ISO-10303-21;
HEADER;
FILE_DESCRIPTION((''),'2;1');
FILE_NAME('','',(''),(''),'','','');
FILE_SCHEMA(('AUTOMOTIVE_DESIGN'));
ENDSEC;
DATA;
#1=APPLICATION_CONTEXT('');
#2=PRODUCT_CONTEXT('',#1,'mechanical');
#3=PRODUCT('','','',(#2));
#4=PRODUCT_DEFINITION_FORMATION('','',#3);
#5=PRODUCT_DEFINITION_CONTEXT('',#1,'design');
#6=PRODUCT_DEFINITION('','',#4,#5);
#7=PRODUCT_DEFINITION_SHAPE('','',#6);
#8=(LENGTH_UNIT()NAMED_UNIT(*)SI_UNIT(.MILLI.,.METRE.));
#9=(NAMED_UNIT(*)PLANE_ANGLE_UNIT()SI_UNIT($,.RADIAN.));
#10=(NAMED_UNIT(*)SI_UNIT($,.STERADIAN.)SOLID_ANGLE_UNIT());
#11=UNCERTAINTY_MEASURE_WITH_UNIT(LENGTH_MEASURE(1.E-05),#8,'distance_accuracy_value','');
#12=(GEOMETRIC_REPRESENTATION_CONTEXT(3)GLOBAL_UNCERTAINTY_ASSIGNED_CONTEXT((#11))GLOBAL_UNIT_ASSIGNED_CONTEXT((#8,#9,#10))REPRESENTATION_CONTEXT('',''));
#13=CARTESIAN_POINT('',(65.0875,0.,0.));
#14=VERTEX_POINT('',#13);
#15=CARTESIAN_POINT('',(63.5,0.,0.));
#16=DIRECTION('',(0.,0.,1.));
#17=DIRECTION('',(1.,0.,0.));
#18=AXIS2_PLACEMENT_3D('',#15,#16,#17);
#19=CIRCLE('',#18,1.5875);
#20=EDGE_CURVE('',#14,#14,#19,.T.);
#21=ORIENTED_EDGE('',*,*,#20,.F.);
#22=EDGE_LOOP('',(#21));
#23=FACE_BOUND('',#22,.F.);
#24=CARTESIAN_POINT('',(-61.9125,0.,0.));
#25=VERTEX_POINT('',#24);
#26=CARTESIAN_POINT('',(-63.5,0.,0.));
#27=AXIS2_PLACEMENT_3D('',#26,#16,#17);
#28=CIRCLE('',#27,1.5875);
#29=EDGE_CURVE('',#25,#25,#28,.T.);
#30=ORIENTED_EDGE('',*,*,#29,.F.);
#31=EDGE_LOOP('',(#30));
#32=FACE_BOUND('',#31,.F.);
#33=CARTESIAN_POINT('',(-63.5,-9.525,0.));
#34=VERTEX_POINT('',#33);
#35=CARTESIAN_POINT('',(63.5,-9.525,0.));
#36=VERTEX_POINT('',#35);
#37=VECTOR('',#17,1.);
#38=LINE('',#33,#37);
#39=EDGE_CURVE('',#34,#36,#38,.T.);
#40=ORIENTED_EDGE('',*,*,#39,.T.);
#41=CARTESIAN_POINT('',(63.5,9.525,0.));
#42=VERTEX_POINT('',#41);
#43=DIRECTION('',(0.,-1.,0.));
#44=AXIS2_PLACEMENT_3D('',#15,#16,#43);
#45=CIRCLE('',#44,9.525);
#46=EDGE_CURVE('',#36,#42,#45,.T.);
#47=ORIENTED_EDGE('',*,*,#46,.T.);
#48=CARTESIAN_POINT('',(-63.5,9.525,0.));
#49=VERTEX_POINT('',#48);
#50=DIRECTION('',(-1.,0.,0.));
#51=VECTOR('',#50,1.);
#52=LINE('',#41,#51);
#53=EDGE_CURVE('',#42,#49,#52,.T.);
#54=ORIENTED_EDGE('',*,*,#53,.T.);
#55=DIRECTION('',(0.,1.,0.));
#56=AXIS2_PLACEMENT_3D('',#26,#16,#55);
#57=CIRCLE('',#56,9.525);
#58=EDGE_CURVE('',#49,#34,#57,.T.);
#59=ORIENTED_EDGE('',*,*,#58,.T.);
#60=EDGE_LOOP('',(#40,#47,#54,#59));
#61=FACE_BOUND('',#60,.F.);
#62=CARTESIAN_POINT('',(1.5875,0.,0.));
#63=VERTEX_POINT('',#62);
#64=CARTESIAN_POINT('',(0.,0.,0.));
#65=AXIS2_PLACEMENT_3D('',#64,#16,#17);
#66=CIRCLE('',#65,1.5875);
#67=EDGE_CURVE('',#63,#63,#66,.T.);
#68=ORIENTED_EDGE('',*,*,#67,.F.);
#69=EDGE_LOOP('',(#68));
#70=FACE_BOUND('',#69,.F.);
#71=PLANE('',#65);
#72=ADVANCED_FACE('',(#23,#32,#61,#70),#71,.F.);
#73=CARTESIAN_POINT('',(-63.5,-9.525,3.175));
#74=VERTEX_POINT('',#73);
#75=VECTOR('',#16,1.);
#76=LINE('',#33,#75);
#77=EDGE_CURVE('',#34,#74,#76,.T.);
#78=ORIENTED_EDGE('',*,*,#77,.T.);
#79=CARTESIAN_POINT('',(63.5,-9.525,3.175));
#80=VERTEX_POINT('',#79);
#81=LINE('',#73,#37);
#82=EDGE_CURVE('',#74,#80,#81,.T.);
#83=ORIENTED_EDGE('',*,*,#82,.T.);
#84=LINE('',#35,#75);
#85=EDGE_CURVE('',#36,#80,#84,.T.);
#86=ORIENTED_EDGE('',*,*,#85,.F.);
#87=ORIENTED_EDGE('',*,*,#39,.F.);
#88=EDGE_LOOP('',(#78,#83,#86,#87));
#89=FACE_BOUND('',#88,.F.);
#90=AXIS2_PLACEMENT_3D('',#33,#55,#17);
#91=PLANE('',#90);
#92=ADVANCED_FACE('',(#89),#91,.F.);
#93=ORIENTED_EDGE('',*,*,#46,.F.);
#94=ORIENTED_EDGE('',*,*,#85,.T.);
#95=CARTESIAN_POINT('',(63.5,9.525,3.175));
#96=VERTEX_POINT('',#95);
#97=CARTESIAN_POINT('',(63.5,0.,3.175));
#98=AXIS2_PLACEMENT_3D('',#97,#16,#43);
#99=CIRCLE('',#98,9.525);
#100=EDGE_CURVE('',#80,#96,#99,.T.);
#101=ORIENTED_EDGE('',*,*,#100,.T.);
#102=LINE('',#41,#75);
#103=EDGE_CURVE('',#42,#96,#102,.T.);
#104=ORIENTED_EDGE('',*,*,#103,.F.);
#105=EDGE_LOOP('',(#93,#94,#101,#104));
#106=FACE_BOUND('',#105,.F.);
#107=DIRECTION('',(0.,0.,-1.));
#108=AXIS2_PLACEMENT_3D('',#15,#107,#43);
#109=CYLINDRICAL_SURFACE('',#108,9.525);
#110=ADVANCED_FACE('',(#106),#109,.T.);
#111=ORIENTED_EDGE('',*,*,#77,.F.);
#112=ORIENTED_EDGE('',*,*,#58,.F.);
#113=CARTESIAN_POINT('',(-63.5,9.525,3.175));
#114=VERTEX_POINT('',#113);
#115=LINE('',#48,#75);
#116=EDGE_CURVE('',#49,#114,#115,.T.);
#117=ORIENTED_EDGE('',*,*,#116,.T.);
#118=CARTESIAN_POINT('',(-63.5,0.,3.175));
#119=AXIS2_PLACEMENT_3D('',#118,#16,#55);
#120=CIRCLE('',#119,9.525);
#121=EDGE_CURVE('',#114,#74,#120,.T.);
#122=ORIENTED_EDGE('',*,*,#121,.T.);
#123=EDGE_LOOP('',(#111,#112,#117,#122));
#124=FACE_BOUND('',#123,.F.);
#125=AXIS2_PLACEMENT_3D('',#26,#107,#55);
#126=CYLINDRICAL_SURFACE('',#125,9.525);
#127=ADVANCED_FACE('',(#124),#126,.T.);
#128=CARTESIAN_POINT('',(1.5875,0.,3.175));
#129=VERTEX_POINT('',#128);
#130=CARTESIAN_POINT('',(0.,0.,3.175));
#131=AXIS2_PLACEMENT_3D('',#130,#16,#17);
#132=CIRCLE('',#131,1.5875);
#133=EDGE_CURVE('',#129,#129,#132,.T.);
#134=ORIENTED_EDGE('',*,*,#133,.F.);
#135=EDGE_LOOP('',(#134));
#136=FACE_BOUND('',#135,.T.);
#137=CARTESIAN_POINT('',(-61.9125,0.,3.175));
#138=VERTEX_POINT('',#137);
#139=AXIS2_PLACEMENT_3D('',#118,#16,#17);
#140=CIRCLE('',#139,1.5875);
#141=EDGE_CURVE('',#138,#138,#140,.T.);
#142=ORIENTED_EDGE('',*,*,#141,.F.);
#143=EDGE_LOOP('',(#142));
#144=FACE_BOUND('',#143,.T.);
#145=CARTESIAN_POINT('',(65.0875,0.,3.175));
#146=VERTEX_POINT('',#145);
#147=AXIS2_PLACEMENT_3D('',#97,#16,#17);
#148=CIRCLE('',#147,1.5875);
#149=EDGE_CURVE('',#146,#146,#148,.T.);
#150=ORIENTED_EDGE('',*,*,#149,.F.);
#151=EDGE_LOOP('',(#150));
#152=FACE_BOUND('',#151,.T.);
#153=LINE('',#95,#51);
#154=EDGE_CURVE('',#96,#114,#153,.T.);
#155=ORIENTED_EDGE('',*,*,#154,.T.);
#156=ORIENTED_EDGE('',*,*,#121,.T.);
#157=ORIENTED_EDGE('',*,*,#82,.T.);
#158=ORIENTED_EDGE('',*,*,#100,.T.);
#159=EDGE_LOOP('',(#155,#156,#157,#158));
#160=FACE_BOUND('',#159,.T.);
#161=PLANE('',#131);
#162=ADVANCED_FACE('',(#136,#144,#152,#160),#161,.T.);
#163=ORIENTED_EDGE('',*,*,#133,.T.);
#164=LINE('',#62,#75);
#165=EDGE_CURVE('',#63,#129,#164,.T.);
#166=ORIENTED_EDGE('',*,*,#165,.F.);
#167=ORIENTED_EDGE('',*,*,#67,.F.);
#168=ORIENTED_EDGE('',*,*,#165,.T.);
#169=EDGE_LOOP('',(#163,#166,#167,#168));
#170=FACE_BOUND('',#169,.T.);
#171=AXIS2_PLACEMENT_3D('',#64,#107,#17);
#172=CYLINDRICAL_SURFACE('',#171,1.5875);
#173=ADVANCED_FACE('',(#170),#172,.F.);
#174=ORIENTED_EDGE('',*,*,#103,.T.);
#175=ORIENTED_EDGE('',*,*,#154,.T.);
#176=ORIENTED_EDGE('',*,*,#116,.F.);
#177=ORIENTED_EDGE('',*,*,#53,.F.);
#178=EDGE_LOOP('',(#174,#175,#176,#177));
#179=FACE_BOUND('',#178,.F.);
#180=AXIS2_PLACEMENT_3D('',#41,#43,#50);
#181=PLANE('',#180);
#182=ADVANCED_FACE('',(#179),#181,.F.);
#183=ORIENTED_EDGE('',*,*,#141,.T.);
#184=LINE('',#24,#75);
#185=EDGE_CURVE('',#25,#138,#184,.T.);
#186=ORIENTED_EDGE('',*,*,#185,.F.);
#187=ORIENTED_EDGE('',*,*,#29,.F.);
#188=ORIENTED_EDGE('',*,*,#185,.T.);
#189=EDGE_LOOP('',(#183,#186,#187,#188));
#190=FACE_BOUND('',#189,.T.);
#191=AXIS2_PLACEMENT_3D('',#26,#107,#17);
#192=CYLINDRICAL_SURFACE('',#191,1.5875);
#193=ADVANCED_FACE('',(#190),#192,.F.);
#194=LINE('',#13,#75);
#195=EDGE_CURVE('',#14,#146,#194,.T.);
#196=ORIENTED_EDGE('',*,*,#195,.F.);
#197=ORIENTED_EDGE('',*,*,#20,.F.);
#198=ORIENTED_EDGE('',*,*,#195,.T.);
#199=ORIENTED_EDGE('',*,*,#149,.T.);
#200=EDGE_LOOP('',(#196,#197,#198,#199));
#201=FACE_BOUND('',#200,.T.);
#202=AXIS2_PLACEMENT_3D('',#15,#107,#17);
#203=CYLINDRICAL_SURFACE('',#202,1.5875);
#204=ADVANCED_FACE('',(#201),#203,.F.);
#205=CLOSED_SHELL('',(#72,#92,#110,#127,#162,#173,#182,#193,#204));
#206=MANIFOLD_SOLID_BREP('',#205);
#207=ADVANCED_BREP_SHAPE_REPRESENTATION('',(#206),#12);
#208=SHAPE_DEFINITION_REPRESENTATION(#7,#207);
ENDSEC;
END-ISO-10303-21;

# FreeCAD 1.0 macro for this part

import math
import FreeCAD as App
import Part
import Sketcher
from FreeCAD import Vector
Q = App.Units.Quantity

doc = App.newDocument("Part")
body = doc.addObject("PartDesign::Body", "Body")

# Sketch on XY plane
sketch1 = doc.addObject("Sketcher::SketchObject", "Sketch")
body.addObject(sketch1)
sketch1.AttachmentSupport = (doc.XY_Plane, [""])
sketch1.MapMode = "FlatFace"
sketch1.addGeometry(Part.ArcOfCircle(Part.Circle(Vector(63.5, 0, 0), Vector(0, 0, 1), 9.5), math.radians(-90), math.radians(90)), False)
sketch1.addGeometry(Part.LineSegment(Vector(63.5, 9.5, 0), Vector(-63.5, 9.5, 0)), False)
sketch1.addGeometry(Part.ArcOfCircle(Part.Circle(Vector(-63.5, 0, 0), Vector(0, 0, 1), 9.5), math.radians(90), math.radians(270)), False)
sketch1.addGeometry(Part.LineSegment(Vector(-63.5, -9.5, 0), Vector(63.5, -9.5, 0)), False)
sketch1.addGeometry(Part.Circle(Vector(-63.5, 0, 0), Vector(0, 0, 1), 1.6), False)
sketch1.addGeometry(Part.Circle(Vector(0, 0, 0), Vector(0, 0, 1), 1.6), False)
sketch1.addGeometry(Part.Circle(Vector(63.5, 0, 0), Vector(0, 0, 1), 1.6), False)
sketch1.addConstraint(Sketcher.Constraint("Tangent", 0, 2, 1, 1))
sketch1.addConstraint(Sketcher.Constraint("Tangent", 1, 2, 2, 1))
sketch1.addConstraint(Sketcher.Constraint("Tangent", 2, 2, 3, 1))
sketch1.addConstraint(Sketcher.Constraint("Tangent", 3, 2, 0, 1))
sketch1.addConstraint(Sketcher.Constraint("Horizontal", 1))
sketch1.addConstraint(Sketcher.Constraint("Horizontal", 3))
sketch1.addConstraint(Sketcher.Constraint("Coincident", 5, 3, -1, 1))
sketch1.addConstraint(Sketcher.Constraint("Coincident", 4, 3, 2, 3))
sketch1.addConstraint(Sketcher.Constraint("Coincident", 6, 3, 0, 3))
sketch1.addConstraint(Sketcher.Constraint("Equal", 4, 5))
sketch1.addConstraint(Sketcher.Constraint("Equal", 5, 6))
sketch1.addConstraint(Sketcher.Constraint("Symmetric", 0, 3, 2, 3, -1, 1))
sketch1.addConstraint(Sketcher.Constraint("DistanceX", 1, 2, 1, 1, Q("5 in")))
sketch1.addConstraint(Sketcher.Constraint("Diameter", 4, Q("0.125 in")))
sketch1.addConstraint(Sketcher.Constraint("Radius", 0, Q("0.375 in")))
pad1 = doc.addObject("PartDesign::Pad", "Pad")
body.addObject(pad1)
pad1.Profile = sketch1
pad1.Length = Q("0.125 in")

doc.recompute()
